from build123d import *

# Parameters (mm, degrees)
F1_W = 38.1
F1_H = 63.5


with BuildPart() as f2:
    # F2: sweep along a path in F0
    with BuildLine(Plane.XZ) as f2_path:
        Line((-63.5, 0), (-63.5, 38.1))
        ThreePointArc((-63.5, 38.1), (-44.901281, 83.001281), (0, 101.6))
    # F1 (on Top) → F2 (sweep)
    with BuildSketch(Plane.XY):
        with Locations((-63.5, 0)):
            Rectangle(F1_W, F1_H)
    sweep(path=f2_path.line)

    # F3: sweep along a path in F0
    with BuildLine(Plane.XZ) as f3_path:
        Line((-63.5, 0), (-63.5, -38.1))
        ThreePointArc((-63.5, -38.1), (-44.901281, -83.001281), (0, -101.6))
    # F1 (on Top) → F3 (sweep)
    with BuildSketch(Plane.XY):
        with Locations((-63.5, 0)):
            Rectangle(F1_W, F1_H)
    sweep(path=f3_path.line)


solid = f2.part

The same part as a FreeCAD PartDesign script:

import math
import FreeCAD as App
import Part
import Sketcher
from FreeCAD import Vector
Q = App.Units.Quantity

doc = App.newDocument("Part")
body = doc.addObject("PartDesign::Body", "Body")

# Sketch on XY plane
sketch1 = body.newObject("Sketcher::SketchObject", "Sketch")
sketch1.AttachmentSupport = (doc.getObject("XY_Plane"), [""])
sketch1.MapMode = "FlatFace"
sketch1.addGeometry([
    Part.LineSegment(Vector(-83, 32, 0), Vector(-83, -32, 0)),
    Part.LineSegment(Vector(-83, -32, 0), Vector(-44, -32, 0)),
    Part.LineSegment(Vector(-44, -32, 0), Vector(-44, 32, 0)),
    Part.LineSegment(Vector(-44, 32, 0), Vector(-83, 32, 0)),
], False)
sketch1.addConstraint([
    Sketcher.Constraint("Coincident", 0, 2, 1, 1),
    Sketcher.Constraint("Coincident", 1, 2, 2, 1),
    Sketcher.Constraint("Coincident", 2, 2, 3, 1),
    Sketcher.Constraint("Coincident", 3, 2, 0, 1),
    Sketcher.Constraint("Vertical", 0),
    Sketcher.Constraint("Horizontal", 1),
    Sketcher.Constraint("Vertical", 2),
    Sketcher.Constraint("Horizontal", 3),
    Sketcher.Constraint("DistanceX", 1, 1, 1, 2, Q("1.5 in")),
    Sketcher.Constraint("DistanceY", 0, 2, 0, 1, Q("2.5 in")),
    Sketcher.Constraint("DistanceX", 0, 2, -1, 1, Q("3.25 in")),
    Sketcher.Constraint("DistanceY", 0, 2, -1, 1, Q("1.25 in")),
])

# Sketch on XZ plane
sketch2 = body.newObject("Sketcher::SketchObject", "Sketch001")
sketch2.AttachmentSupport = (doc.getObject("XZ_Plane"), [""])
sketch2.MapMode = "FlatFace"
sketch2.addGeometry([
    Part.LineSegment(Vector(-64, 0, 0), Vector(-64, 38, 0)),
    Part.ArcOfCircle(Part.Circle(Vector(0, 38, 0), Vector(0, 0, 1), 63), math.radians(90), math.radians(180)),
], False)
sketch2.addConstraint([
    Sketcher.Constraint("Tangent", 0, 2, 1, 2),
    Sketcher.Constraint("Vertical", 0),
    Sketcher.Constraint("PointOnObject", 1, 3, -2),
    Sketcher.Constraint("PointOnObject", 0, 1, -1),
    Sketcher.Constraint("PointOnObject", 1, 1, -2),
    Sketcher.Constraint("Radius", 1, Q("2.4999999 in")),
    Sketcher.Constraint("DistanceY", 0, 1, 0, 2, Q("1.5 in")),
])
doc.recompute()

additivepipe = body.newObject("PartDesign::AdditivePipe", "AdditivePipe")
additivepipe.Profile = sketch1
additivepipe.Spine = (sketch2, ["Edge1", "Edge2"])

# Sketch on XY plane
sketch3 = body.newObject("Sketcher::SketchObject", "Sketch002")
sketch3.AttachmentSupport = (doc.getObject("XY_Plane"), [""])
sketch3.MapMode = "FlatFace"
sketch3.addGeometry([
    Part.LineSegment(Vector(-83, 32, 0), Vector(-83, -32, 0)),
    Part.LineSegment(Vector(-83, -32, 0), Vector(-44, -32, 0)),
    Part.LineSegment(Vector(-44, -32, 0), Vector(-44, 32, 0)),
    Part.LineSegment(Vector(-44, 32, 0), Vector(-83, 32, 0)),
], False)
sketch3.addConstraint([
    Sketcher.Constraint("Coincident", 0, 2, 1, 1),
    Sketcher.Constraint("Coincident", 1, 2, 2, 1),
    Sketcher.Constraint("Coincident", 2, 2, 3, 1),
    Sketcher.Constraint("Coincident", 3, 2, 0, 1),
    Sketcher.Constraint("Vertical", 0),
    Sketcher.Constraint("Horizontal", 1),
    Sketcher.Constraint("Vertical", 2),
    Sketcher.Constraint("Horizontal", 3),
    Sketcher.Constraint("DistanceX", 1, 1, 1, 2, Q("1.5 in")),
    Sketcher.Constraint("DistanceY", 0, 2, 0, 1, Q("2.5 in")),
    Sketcher.Constraint("DistanceX", 0, 2, -1, 1, Q("3.25 in")),
    Sketcher.Constraint("DistanceY", 0, 2, -1, 1, Q("1.25 in")),
])

# Sketch on XZ plane
sketch4 = body.newObject("Sketcher::SketchObject", "Sketch003")
sketch4.AttachmentSupport = (doc.getObject("XZ_Plane"), [""])
sketch4.MapMode = "FlatFace"
sketch4.addGeometry([
    Part.LineSegment(Vector(-64, 0, 0), Vector(-64, -38, 0)),
    Part.ArcOfCircle(Part.Circle(Vector(0, -38, 0), Vector(0, 0, 1), 63), math.radians(180), math.radians(270)),
], False)
sketch4.addConstraint([
    Sketcher.Constraint("Tangent", 0, 2, 1, 1),
    Sketcher.Constraint("Vertical", 0),
    Sketcher.Constraint("PointOnObject", 1, 3, -2),
    Sketcher.Constraint("PointOnObject", 0, 1, -1),
    Sketcher.Constraint("PointOnObject", 1, 2, -2),
    Sketcher.Constraint("Radius", 1, Q("2.4999999 in")),
    Sketcher.Constraint("DistanceY", 0, 2, 0, 1, Q("1.5 in")),
])
doc.recompute()

additivepipe2 = body.newObject("PartDesign::AdditivePipe", "AdditivePipe001")
additivepipe2.Profile = sketch3
additivepipe2.Spine = (sketch4, ["Edge1", "Edge2"])

doc.recompute()
